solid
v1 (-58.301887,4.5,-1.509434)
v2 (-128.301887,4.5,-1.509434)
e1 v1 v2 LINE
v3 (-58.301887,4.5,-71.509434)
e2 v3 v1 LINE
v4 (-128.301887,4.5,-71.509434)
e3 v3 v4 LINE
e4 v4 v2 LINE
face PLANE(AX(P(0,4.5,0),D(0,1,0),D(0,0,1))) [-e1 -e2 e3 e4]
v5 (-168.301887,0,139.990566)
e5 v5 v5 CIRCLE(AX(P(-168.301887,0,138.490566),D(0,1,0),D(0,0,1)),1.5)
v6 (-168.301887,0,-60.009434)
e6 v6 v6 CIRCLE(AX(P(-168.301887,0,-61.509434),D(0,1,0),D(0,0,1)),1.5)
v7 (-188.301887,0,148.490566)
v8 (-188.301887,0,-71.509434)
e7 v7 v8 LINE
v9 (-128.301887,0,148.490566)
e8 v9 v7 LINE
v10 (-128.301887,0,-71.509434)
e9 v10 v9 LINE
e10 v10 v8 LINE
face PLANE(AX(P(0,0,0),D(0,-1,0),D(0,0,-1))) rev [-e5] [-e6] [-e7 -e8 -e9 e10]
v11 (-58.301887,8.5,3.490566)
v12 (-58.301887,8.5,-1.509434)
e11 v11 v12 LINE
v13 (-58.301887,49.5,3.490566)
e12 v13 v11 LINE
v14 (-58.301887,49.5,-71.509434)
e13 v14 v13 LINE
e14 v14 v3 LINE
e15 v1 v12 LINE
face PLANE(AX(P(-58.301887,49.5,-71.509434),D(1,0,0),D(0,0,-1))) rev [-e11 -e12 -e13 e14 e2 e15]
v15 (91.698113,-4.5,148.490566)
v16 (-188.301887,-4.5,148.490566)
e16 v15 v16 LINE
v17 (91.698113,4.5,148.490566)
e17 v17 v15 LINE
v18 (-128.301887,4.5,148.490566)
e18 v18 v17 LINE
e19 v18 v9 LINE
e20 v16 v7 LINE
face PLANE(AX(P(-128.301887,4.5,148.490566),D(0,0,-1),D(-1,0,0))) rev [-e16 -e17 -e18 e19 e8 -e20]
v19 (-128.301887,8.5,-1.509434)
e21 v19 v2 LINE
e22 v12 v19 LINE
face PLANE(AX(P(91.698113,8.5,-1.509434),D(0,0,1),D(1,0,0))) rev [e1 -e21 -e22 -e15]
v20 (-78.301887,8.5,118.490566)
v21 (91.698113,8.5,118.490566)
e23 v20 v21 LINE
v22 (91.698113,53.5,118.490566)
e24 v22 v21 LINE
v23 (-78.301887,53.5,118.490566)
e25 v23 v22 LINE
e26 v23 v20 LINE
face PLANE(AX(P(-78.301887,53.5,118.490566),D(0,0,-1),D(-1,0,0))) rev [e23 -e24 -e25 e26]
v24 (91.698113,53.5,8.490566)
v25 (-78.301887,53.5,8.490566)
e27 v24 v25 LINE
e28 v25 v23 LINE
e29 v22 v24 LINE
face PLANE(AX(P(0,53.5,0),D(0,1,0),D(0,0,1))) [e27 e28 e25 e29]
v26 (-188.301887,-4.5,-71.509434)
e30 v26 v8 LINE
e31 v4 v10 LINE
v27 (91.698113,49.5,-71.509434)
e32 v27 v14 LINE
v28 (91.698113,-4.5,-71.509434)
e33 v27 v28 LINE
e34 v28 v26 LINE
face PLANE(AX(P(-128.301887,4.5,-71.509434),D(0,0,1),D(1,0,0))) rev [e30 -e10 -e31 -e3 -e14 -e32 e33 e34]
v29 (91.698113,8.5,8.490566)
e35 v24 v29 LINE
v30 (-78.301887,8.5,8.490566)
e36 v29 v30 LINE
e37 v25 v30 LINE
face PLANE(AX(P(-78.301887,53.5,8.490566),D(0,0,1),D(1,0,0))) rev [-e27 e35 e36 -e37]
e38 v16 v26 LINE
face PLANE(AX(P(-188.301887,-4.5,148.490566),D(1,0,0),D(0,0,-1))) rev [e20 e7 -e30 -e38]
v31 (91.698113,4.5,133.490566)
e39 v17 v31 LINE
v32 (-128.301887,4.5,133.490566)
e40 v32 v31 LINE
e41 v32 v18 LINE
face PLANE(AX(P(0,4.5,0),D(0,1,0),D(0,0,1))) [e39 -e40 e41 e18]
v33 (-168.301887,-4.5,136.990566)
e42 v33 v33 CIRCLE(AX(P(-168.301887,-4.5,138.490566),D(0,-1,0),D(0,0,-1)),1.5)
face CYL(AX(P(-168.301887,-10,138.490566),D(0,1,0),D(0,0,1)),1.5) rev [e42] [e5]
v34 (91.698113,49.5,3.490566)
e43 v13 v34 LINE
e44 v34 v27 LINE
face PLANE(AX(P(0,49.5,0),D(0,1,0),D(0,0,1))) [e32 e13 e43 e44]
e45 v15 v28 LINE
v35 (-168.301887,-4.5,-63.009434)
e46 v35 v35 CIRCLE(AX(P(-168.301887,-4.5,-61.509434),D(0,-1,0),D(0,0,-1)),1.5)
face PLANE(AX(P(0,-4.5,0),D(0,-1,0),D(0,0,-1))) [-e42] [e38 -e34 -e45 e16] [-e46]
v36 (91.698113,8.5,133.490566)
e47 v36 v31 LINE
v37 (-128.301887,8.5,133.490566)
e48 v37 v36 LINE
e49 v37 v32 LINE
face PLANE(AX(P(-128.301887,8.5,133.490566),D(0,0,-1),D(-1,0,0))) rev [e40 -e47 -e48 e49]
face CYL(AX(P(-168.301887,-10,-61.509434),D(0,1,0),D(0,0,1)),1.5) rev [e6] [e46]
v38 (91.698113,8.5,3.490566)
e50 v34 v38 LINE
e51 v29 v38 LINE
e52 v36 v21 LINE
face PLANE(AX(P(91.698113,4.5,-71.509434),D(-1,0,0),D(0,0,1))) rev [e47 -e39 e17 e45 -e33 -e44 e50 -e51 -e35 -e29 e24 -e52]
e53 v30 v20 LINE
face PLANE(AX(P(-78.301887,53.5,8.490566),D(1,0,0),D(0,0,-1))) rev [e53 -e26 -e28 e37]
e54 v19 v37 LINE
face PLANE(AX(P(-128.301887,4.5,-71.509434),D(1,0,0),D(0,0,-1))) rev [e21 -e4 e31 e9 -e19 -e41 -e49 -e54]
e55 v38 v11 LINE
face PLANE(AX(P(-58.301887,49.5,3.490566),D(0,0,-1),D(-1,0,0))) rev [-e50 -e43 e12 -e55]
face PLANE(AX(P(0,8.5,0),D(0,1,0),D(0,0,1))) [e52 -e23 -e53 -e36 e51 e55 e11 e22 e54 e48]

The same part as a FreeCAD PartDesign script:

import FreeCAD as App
import Part
import Sketcher
from FreeCAD import Vector

doc = App.newDocument("Part")
body = doc.addObject("PartDesign::Body", "Body")

# Sketch on XZ plane
sketch1 = doc.addObject("Sketcher::SketchObject", "Sketch")
body.addObject(sketch1)
sketch1.AttachmentSupport = (doc.XZ_Plane, [""])
sketch1.MapMode = "FlatFace"
sketch1.addGeometry(Part.LineSegment(Vector(-128, -72, 0), Vector(-128, 148, 0)), False)
sketch1.addGeometry(Part.LineSegment(Vector(-128, 148, 0), Vector(92, 148, 0)), False)
sketch1.addGeometry(Part.LineSegment(Vector(92, 148, 0), Vector(92, -72, 0)), False)
sketch1.addGeometry(Part.LineSegment(Vector(92, -72, 0), Vector(-128, -72, 0)), False)
sketch1.addConstraint(Sketcher.Constraint("Coincident", 0, 2, 1, 1))
sketch1.addConstraint(Sketcher.Constraint("Coincident", 1, 2, 2, 1))
sketch1.addConstraint(Sketcher.Constraint("Coincident", 2, 2, 3, 1))
sketch1.addConstraint(Sketcher.Constraint("Coincident", 3, 2, 0, 1))
sketch1.addConstraint(Sketcher.Constraint("Vertical", 0))
sketch1.addConstraint(Sketcher.Constraint("Horizontal", 1))
sketch1.addConstraint(Sketcher.Constraint("Vertical", 2))
sketch1.addConstraint(Sketcher.Constraint("Horizontal", 3))
sketch1.addConstraint(Sketcher.Constraint("Equal", 3, 0))
sketch1.addConstraint(Sketcher.Constraint("DistanceX", 1, 1, 1, 2, 220.0))
sketch1.addConstraint(Sketcher.Constraint("DistanceX", 0, 2, -1, 1, 128.301887))
sketch1.addConstraint(Sketcher.Constraint("DistanceY", -1, 1, 0, 2, 148.490566))
pad1 = doc.addObject("PartDesign::Pad", "Pad")
body.addObject(pad1)
pad1.Profile = sketch1
pad1.Length = 4.5
pad1.Reversed = True

# Sketch on XZ plane
sketch2 = doc.addObject("Sketcher::SketchObject", "Sketch001")
body.addObject(sketch2)
sketch2.AttachmentSupport = (doc.XZ_Plane, [""])
sketch2.MapMode = "FlatFace"
sketch2.AttachmentOffset = App.Placement(Vector(0, 0, -4.5), App.Rotation())
sketch2.addGeometry(Part.LineSegment(Vector(-128, -2, 0), Vector(-128, 133, 0)), False)
sketch2.addGeometry(Part.LineSegment(Vector(-128, 133, 0), Vector(92, 133, 0)), False)
sketch2.addGeometry(Part.LineSegment(Vector(92, 133, 0), Vector(92, -2, 0)), False)
sketch2.addGeometry(Part.LineSegment(Vector(92, -2, 0), Vector(-128, -2, 0)), False)
sketch2.addConstraint(Sketcher.Constraint("Coincident", 0, 2, 1, 1))
sketch2.addConstraint(Sketcher.Constraint("Coincident", 1, 2, 2, 1))
sketch2.addConstraint(Sketcher.Constraint("Coincident", 2, 2, 3, 1))
sketch2.addConstraint(Sketcher.Constraint("Coincident", 3, 2, 0, 1))
sketch2.addConstraint(Sketcher.Constraint("Vertical", 0))
sketch2.addConstraint(Sketcher.Constraint("Horizontal", 1))
sketch2.addConstraint(Sketcher.Constraint("Vertical", 2))
sketch2.addConstraint(Sketcher.Constraint("Horizontal", 3))
sketch2.addConstraint(Sketcher.Constraint("DistanceX", 1, 1, 1, 2, 220.0))
sketch2.addConstraint(Sketcher.Constraint("DistanceY", 0, 1, 0, 2, 135.0))
sketch2.addConstraint(Sketcher.Constraint("DistanceX", 0, 2, -1, 1, 128.301887))
sketch2.addConstraint(Sketcher.Constraint("DistanceY", -1, 1, 0, 2, 133.490566))
pad2 = doc.addObject("PartDesign::Pad", "Pad001")
body.addObject(pad2)
pad2.Profile = sketch2
pad2.Length = 4
pad2.Reversed = True

# Sketch on XZ plane
sketch3 = doc.addObject("Sketcher::SketchObject", "Sketch002")
body.addObject(sketch3)
sketch3.AttachmentSupport = (doc.XZ_Plane, [""])
sketch3.MapMode = "FlatFace"
sketch3.AttachmentOffset = App.Placement(Vector(0, 0, -4.5), App.Rotation())
sketch3.addGeometry(Part.LineSegment(Vector(-58, -72, 0), Vector(-58, 3, 0)), False)
sketch3.addGeometry(Part.LineSegment(Vector(-58, 3, 0), Vector(92, 3, 0)), False)
sketch3.addGeometry(Part.LineSegment(Vector(92, 3, 0), Vector(92, -72, 0)), False)
sketch3.addGeometry(Part.LineSegment(Vector(92, -72, 0), Vector(-58, -72, 0)), False)
sketch3.addConstraint(Sketcher.Constraint("Coincident", 0, 2, 1, 1))
sketch3.addConstraint(Sketcher.Constraint("Coincident", 1, 2, 2, 1))
sketch3.addConstraint(Sketcher.Constraint("Coincident", 2, 2, 3, 1))
sketch3.addConstraint(Sketcher.Constraint("Coincident", 3, 2, 0, 1))
sketch3.addConstraint(Sketcher.Constraint("Vertical", 0))
sketch3.addConstraint(Sketcher.Constraint("Horizontal", 1))
sketch3.addConstraint(Sketcher.Constraint("Vertical", 2))
sketch3.addConstraint(Sketcher.Constraint("Horizontal", 3))
sketch3.addConstraint(Sketcher.Constraint("DistanceX", 1, 1, 1, 2, 150.0))
sketch3.addConstraint(Sketcher.Constraint("DistanceY", 0, 1, 0, 2, 75.0))
sketch3.addConstraint(Sketcher.Constraint("DistanceX", 0, 2, -1, 1, 58.301887))
sketch3.addConstraint(Sketcher.Constraint("DistanceY", -1, 1, 0, 2, 3.490566))
pad3 = doc.addObject("PartDesign::Pad", "Pad002")
body.addObject(pad3)
pad3.Profile = sketch3
pad3.Length = 45
pad3.Reversed = True

# Sketch on XZ plane
sketch4 = doc.addObject("Sketcher::SketchObject", "Sketch003")
body.addObject(sketch4)
sketch4.AttachmentSupport = (doc.XZ_Plane, [""])
sketch4.MapMode = "FlatFace"
sketch4.AttachmentOffset = App.Placement(Vector(0, 0, -8.5), App.Rotation())
sketch4.addGeometry(Part.LineSegment(Vector(-78, 8, 0), Vector(-78, 118, 0)), False)
sketch4.addGeometry(Part.LineSegment(Vector(-78, 118, 0), Vector(92, 118, 0)), False)
sketch4.addGeometry(Part.LineSegment(Vector(92, 118, 0), Vector(92, 8, 0)), False)
sketch4.addGeometry(Part.LineSegment(Vector(92, 8, 0), Vector(-78, 8, 0)), False)
sketch4.addConstraint(Sketcher.Constraint("Coincident", 0, 2, 1, 1))
sketch4.addConstraint(Sketcher.Constraint("Coincident", 1, 2, 2, 1))
sketch4.addConstraint(Sketcher.Constraint("Coincident", 2, 2, 3, 1))
sketch4.addConstraint(Sketcher.Constraint("Coincident", 3, 2, 0, 1))
sketch4.addConstraint(Sketcher.Constraint("Vertical", 0))
sketch4.addConstraint(Sketcher.Constraint("Horizontal", 1))
sketch4.addConstraint(Sketcher.Constraint("Vertical", 2))
sketch4.addConstraint(Sketcher.Constraint("Horizontal", 3))
sketch4.addConstraint(Sketcher.Constraint("DistanceX", 1, 1, 1, 2, 170.0))
sketch4.addConstraint(Sketcher.Constraint("DistanceY", 0, 1, 0, 2, 110.0))
sketch4.addConstraint(Sketcher.Constraint("DistanceX", 0, 2, -1, 1, 78.301887))
sketch4.addConstraint(Sketcher.Constraint("DistanceY", -1, 1, 0, 2, 118.490566))
pad4 = doc.addObject("PartDesign::Pad", "Pad003")
body.addObject(pad4)
pad4.Profile = sketch4
pad4.Length = 45
pad4.Reversed = True

# Sketch on XZ plane
sketch5 = doc.addObject("Sketcher::SketchObject", "Sketch004")
body.addObject(sketch5)
sketch5.AttachmentSupport = (doc.XZ_Plane, [""])
sketch5.MapMode = "FlatFace"
sketch5.addGeometry(Part.LineSegment(Vector(-188, 148, 0), Vector(-188, -72, 0)), False)
sketch5.addGeometry(Part.LineSegment(Vector(-188, -72, 0), Vector(92, -72, 0)), False)
sketch5.addGeometry(Part.LineSegment(Vector(92, -72, 0), Vector(92, 148, 0)), False)
sketch5.addGeometry(Part.LineSegment(Vector(92, 148, 0), Vector(-188, 148, 0)), False)
sketch5.addConstraint(Sketcher.Constraint("Coincident", 0, 2, 1, 1))
sketch5.addConstraint(Sketcher.Constraint("Coincident", 1, 2, 2, 1))
sketch5.addConstraint(Sketcher.Constraint("Coincident", 2, 2, 3, 1))
sketch5.addConstraint(Sketcher.Constraint("Coincident", 3, 2, 0, 1))
sketch5.addConstraint(Sketcher.Constraint("Vertical", 0))
sketch5.addConstraint(Sketcher.Constraint("Horizontal", 1))
sketch5.addConstraint(Sketcher.Constraint("Vertical", 2))
sketch5.addConstraint(Sketcher.Constraint("Horizontal", 3))
sketch5.addConstraint(Sketcher.Constraint("DistanceX", 1, 1, 1, 2, 280.0))
sketch5.addConstraint(Sketcher.Constraint("DistanceY", 0, 2, 0, 1, 220.0))
sketch5.addConstraint(Sketcher.Constraint("DistanceX", 0, 2, -1, 1, 188.301887))
sketch5.addConstraint(Sketcher.Constraint("DistanceY", 0, 2, -1, 1, 71.509434))
pad5 = doc.addObject("PartDesign::Pad", "Pad004")
body.addObject(pad5)
pad5.Profile = sketch5
pad5.Length = 4.5

# Sketch on XZ plane
sketch6 = doc.addObject("Sketcher::SketchObject", "Sketch005")
body.addObject(sketch6)
sketch6.AttachmentSupport = (doc.XZ_Plane, [""])
sketch6.MapMode = "FlatFace"
sketch6.addGeometry(Part.Circle(Vector(-168.3, -61.5, 0), Vector(0, 0, 1), 1.5), False)
sketch6.addGeometry(Part.Circle(Vector(-168.3, 138.5, 0), Vector(0, 0, 1), 1.5), False)
sketch6.addConstraint(Sketcher.Constraint("Equal", 0, 1))
sketch6.addConstraint(Sketcher.Constraint("Vertical", 0, 3, 1, 3))
sketch6.addConstraint(Sketcher.Constraint("Diameter", 0, 3.0))
sketch6.addConstraint(Sketcher.Constraint("DistanceY", 0, 3, 1, 3, 200.0))
sketch6.addConstraint(Sketcher.Constraint("DistanceX", 0, 3, -1, 1, 168.301887))
sketch6.addConstraint(Sketcher.Constraint("DistanceY", 0, 3, -1, 1, 61.509434))
pocket1 = doc.addObject("PartDesign::Pocket", "Pocket")
body.addObject(pocket1)
pocket1.Profile = sketch6
pocket1.Length = 10
pocket1.Reversed = True

doc.recompute()
